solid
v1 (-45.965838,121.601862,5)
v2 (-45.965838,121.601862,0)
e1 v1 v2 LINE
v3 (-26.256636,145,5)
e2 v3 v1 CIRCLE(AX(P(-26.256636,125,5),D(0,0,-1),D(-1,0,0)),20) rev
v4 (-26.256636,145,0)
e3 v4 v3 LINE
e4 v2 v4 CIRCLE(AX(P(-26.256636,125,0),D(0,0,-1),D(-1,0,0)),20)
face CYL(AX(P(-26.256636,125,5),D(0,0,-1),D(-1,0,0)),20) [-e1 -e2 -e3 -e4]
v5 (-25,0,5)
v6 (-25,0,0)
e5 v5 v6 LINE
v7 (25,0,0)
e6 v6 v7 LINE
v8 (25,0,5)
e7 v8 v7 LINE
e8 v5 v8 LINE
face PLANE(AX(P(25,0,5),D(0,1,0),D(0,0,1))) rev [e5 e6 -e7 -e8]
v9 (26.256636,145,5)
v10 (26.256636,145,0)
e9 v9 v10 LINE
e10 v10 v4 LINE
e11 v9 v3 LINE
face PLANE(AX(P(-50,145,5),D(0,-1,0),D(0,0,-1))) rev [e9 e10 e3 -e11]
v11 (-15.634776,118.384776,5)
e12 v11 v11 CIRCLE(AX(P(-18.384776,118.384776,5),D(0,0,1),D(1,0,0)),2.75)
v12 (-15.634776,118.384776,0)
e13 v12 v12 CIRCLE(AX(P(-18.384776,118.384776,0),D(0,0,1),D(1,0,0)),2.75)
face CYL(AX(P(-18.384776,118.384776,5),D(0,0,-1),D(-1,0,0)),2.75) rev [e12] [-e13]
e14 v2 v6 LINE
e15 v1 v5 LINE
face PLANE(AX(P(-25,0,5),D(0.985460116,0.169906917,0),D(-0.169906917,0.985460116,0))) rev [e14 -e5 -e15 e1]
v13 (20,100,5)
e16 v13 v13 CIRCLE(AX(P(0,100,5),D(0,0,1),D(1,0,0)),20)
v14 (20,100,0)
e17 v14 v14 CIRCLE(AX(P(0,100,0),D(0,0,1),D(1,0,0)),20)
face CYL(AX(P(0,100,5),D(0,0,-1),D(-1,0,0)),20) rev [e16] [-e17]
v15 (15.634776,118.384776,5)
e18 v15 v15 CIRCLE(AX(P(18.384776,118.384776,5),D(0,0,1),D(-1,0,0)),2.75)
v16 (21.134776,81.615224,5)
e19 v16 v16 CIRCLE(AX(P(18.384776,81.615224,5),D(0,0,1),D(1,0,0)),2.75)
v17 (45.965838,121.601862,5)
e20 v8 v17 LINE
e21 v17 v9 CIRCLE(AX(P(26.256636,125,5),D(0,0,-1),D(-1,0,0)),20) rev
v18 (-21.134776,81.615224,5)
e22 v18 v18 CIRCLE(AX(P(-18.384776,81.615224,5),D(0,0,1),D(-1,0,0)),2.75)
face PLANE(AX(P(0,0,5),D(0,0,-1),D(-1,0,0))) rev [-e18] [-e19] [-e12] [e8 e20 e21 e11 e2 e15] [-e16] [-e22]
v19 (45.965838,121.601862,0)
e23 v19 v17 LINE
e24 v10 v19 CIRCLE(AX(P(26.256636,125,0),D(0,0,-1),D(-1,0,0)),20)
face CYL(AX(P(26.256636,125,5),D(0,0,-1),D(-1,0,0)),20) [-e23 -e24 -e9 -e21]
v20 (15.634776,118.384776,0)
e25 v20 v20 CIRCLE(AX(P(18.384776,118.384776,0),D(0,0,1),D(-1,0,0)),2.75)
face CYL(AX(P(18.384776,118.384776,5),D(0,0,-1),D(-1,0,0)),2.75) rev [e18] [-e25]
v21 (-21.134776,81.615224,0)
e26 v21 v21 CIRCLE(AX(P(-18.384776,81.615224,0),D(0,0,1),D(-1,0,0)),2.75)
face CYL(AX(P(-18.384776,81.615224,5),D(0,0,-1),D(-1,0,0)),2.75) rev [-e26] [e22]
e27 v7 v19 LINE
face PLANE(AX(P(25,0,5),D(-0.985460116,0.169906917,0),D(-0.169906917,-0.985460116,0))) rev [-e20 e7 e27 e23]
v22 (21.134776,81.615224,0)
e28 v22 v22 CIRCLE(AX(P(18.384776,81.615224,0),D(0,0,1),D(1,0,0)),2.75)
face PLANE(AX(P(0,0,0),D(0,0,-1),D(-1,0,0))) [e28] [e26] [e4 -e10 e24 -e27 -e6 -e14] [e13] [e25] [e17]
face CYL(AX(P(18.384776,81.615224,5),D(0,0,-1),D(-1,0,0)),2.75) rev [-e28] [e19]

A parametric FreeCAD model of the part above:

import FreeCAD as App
import Part
import Sketcher

V = App.Vector


def edges_at(feature, points):
    """Names of the edges that pass closest to the given points."""
    edges = feature.Shape.Edges
    near = lambda p: min(range(len(edges)), key=lambda i: edges[i].distToShape(Part.Vertex(*p))[0])
    return sorted({f"Edge{near(p) + 1}" for p in points})


def add_polygon(sketch, points):
    """Adds a closed chain of lines whose ends are joined by coincident constraints."""
    first, n = sketch.GeometryCount, len(points)
    for a, b in zip(points, points[1:] + points[:1]):
        sketch.addGeometry(Part.LineSegment(App.Vector(*a, 0), App.Vector(*b, 0)), False)
    for i in range(n):
        sketch.addConstraint(Sketcher.Constraint("Coincident", first + i, 2, first + (i + 1) % n, 1))

doc = App.newDocument("Part")
body = doc.addObject("PartDesign::Body", "Body")

# Sketch on XY plane
sketch1 = doc.addObject("Sketcher::SketchObject", "Sketch")
body.addObject(sketch1)
sketch1.AttachmentSupport = (doc.XY_Plane, [""])
sketch1.MapMode = "FlatFace"
add_polygon(sketch1, [(-25, 0), (25, 0), (50, 145), (-50, 145)])  # lines 0-3
sketch1.addGeometry(Part.Circle(V(18.4, 81.6, 0), V(0, 0, 1), 2.8), False)  # 4
sketch1.addGeometry(Part.Circle(V(-18.4, 81.6, 0), V(0, 0, 1), 2.8), False)  # 5
sketch1.addGeometry(Part.Circle(V(18.4, 118.4, 0), V(0, 0, 1), 2.8), False)  # 6
sketch1.addGeometry(Part.Circle(V(0, 100, 0), V(0, 0, 1), 20), False)  # 7
sketch1.addGeometry(Part.Circle(V(-18.4, 118.4, 0), V(0, 0, 1), 2.8), False)  # 8
sketch1.addConstraint(Sketcher.Constraint("Horizontal", 0))
sketch1.addConstraint(Sketcher.Constraint("Horizontal", 2))
sketch1.addConstraint(Sketcher.Constraint("Equal", 4, 5))
sketch1.addConstraint(Sketcher.Constraint("Equal", 5, 6))
sketch1.addConstraint(Sketcher.Constraint("Equal", 6, 8))
sketch1.addConstraint(Sketcher.Constraint("Symmetric", 0, 2, 3, 2, -1, 1))
sketch1.addConstraint(Sketcher.Constraint("Symmetric", 4, 3, 5, 3, -2))
sketch1.addConstraint(Sketcher.Constraint("Symmetric", 6, 3, 8, 3, -2))
sketch1.addConstraint(Sketcher.Constraint("PointOnObject", 7, 3, -2))
sketch1.addConstraint(Sketcher.Constraint("Vertical", 4, 3, 6, 3))
sketch1.addConstraint(Sketcher.Constraint("Equal", 1, 3))
sketch1.addConstraint(Sketcher.Constraint("Diameter", 7, 40.0))
sketch1.addConstraint(Sketcher.Constraint("Diameter", 4, 5.5))
sketch1.addConstraint(Sketcher.Constraint("DistanceX", 0, 1, 0, 2, 50.0))
sketch1.addConstraint(Sketcher.Constraint("DistanceX", 2, 2, 2, 1, 100.0))
sketch1.addConstraint(Sketcher.Constraint("DistanceY", -1, 1, 7, 3, 100.0))
sketch1.addConstraint(Sketcher.Constraint("DistanceY", -1, 1, 1, 2, 145.0))
sketch1.addConstraint(Sketcher.Constraint("DistanceX", -1, 1, 4, 3, 18.384776))
sketch1.addConstraint(Sketcher.Constraint("DistanceY", -1, 1, 4, 3, 81.615224))
sketch1.addConstraint(Sketcher.Constraint("DistanceY", -1, 1, 6, 3, 118.384776))
pad1 = doc.addObject("PartDesign::Pad", "Pad")
body.addObject(pad1)
pad1.Profile = sketch1
pad1.Length = 5
doc.recompute()

fillet = doc.addObject("PartDesign::Fillet", "Fillet")
body.addObject(fillet)
fillet.Base = (pad1, edges_at(pad1, [(-50, 145, 2.5), (50, 145, 2.5)]))
fillet.Radius = 20

doc.recompute()
